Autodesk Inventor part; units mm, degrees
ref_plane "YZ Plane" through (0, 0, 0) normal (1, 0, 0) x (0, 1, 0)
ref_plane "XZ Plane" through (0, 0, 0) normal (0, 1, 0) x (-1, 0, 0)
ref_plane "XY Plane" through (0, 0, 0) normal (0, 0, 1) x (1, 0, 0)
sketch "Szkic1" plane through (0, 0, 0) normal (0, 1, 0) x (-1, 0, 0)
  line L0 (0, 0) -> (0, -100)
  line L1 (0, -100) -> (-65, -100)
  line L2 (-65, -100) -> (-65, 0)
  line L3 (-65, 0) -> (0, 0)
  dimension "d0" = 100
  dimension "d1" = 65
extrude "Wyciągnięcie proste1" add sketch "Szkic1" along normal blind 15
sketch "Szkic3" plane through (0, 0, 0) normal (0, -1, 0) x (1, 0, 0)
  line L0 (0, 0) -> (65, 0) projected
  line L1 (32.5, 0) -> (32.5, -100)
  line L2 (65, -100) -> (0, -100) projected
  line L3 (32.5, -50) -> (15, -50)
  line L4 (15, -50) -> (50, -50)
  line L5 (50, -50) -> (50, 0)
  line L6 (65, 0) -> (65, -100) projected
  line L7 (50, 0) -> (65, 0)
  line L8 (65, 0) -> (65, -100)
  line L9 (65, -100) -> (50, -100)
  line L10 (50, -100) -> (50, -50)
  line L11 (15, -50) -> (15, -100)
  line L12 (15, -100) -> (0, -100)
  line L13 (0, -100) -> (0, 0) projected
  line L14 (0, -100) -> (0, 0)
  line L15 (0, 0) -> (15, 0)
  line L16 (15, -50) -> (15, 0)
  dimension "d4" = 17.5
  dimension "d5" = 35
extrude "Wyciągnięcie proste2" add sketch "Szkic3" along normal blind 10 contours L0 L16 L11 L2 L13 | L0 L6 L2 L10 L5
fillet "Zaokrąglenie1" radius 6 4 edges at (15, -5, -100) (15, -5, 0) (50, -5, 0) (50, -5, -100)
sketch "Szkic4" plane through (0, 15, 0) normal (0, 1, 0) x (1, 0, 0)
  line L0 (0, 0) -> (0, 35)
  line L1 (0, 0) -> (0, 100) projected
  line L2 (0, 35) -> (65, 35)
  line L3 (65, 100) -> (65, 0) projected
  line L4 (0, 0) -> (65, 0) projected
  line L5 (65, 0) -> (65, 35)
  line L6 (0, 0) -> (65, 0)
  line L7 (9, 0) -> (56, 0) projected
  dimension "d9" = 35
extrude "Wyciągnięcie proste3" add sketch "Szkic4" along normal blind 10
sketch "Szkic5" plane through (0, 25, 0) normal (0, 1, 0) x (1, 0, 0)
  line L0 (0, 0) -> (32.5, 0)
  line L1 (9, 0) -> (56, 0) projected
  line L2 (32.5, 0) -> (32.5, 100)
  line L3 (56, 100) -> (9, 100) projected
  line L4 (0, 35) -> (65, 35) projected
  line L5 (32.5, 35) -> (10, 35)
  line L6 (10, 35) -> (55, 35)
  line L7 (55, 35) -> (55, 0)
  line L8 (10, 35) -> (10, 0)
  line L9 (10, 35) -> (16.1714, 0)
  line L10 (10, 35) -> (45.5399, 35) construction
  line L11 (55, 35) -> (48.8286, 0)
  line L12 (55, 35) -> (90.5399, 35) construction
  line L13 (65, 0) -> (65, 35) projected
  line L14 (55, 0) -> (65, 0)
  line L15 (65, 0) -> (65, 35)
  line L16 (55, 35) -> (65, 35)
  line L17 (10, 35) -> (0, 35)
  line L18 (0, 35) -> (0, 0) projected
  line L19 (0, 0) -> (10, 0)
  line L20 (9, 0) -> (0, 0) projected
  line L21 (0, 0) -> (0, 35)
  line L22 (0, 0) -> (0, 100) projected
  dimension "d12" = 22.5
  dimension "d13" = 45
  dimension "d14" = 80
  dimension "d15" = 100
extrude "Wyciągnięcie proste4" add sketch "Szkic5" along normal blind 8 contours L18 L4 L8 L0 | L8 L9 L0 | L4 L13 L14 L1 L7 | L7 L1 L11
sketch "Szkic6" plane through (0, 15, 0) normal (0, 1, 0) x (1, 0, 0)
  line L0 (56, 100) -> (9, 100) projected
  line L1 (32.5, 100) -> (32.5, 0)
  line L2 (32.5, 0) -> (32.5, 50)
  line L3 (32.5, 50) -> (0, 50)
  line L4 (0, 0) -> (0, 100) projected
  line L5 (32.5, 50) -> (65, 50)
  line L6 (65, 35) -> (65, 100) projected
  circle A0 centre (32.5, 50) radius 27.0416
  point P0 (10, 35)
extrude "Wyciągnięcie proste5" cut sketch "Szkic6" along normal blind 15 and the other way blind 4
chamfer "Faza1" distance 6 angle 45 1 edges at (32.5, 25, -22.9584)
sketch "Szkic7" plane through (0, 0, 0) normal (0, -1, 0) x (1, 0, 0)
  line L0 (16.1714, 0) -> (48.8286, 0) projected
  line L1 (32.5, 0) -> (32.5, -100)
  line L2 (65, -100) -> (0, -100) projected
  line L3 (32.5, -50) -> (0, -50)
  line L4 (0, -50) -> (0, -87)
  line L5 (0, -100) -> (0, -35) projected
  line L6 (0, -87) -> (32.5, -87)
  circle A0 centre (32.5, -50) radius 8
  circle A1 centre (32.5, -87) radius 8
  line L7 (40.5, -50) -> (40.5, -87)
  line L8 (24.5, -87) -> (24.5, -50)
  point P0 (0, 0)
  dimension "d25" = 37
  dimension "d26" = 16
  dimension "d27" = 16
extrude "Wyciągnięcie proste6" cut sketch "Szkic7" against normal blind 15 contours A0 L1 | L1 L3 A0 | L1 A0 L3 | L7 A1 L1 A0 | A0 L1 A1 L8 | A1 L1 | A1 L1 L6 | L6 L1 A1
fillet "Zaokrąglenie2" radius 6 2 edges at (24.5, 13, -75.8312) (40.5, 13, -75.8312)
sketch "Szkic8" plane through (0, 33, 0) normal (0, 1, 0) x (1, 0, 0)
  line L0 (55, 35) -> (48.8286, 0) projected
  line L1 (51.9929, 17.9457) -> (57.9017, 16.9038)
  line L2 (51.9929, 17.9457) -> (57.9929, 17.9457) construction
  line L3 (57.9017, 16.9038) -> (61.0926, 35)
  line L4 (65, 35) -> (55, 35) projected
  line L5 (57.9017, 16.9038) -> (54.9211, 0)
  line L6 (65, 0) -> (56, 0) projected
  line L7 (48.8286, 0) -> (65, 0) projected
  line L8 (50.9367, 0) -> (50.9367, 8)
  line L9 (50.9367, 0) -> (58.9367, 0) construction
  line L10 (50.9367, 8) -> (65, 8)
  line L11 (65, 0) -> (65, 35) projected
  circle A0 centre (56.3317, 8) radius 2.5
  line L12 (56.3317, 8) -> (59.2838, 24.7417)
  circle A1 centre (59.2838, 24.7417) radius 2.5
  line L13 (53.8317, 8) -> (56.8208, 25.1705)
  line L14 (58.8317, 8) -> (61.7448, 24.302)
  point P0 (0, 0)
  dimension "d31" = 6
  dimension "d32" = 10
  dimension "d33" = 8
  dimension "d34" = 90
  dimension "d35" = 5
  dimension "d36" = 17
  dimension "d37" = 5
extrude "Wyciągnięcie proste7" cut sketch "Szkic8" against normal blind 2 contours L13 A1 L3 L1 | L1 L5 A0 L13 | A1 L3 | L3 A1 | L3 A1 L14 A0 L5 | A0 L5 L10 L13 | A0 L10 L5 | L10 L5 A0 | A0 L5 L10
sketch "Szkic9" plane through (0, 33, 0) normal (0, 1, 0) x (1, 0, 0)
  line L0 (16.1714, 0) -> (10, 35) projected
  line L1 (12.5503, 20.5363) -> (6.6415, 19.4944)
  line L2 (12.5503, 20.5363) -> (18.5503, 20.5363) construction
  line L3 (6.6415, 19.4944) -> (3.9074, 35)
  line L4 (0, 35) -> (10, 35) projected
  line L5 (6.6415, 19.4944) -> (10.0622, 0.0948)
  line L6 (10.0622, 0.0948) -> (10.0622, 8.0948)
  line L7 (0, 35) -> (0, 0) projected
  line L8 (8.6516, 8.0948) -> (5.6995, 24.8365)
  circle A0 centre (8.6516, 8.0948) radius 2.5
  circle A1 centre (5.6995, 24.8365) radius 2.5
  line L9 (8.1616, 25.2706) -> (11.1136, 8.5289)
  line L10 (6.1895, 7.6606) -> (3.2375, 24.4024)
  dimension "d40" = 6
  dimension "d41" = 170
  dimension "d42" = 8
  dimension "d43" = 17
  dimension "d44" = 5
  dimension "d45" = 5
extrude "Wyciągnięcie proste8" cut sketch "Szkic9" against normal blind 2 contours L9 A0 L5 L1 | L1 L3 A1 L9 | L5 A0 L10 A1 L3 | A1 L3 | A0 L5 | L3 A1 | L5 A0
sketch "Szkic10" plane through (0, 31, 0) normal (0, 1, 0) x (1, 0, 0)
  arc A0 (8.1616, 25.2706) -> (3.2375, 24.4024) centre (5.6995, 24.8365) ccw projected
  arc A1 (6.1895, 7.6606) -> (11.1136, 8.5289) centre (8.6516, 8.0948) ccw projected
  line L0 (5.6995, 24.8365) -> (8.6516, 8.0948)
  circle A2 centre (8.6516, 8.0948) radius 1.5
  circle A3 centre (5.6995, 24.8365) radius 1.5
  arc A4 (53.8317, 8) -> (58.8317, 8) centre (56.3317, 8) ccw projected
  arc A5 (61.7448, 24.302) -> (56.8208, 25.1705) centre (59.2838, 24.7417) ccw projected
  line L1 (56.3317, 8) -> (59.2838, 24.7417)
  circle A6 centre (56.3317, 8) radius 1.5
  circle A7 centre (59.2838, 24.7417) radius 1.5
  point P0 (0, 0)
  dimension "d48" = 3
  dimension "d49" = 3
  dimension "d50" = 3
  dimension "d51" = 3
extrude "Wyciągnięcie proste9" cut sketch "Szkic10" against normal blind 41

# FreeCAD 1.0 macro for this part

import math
import FreeCAD as App
import Part
import Sketcher
from FreeCAD import Vector
Q = App.Units.Quantity


def edges_at(feature, points):
    """Names of the edges that pass closest to the given points."""
    edges = feature.Shape.Edges
    near = lambda p: min(range(len(edges)), key=lambda i: edges[i].distToShape(Part.Vertex(*p))[0])
    return sorted({f"Edge{near(p) + 1}" for p in points})

doc = App.newDocument("Part")
body = doc.addObject("PartDesign::Body", "Body")

sketch1 = body.newObject("Sketcher::SketchObject", "Sketch")
sketch1.AttachmentSupport = (doc.getObject("XZ_Plane"), [""])
sketch1.MapMode = "FlatFace"
sketch1.addGeometry([
    Part.LineSegment(Vector(0, -100, 0), Vector(0, 0, 0)),
    Part.LineSegment(Vector(0, 0, 0), Vector(65, 0, 0)),
    Part.LineSegment(Vector(65, 0, 0), Vector(65, -100, 0)),
    Part.LineSegment(Vector(65, -100, 0), Vector(0, -100, 0)),
], False)
sketch1.addConstraint([
    Sketcher.Constraint("Coincident", 0, 2, 1, 1),
    Sketcher.Constraint("Coincident", 1, 2, 2, 1),
    Sketcher.Constraint("Coincident", 2, 2, 3, 1),
    Sketcher.Constraint("Coincident", 3, 2, 0, 1),
    Sketcher.Constraint("Vertical", 0),
    Sketcher.Constraint("Horizontal", 1),
    Sketcher.Constraint("Vertical", 2),
    Sketcher.Constraint("Horizontal", 3),
    Sketcher.Constraint("Coincident", 0, 2, -1, 1),
    Sketcher.Constraint("DistanceX", 1, 1, 1, 2, 65.0),
    Sketcher.Constraint("DistanceY", 0, 1, 0, 2, 100.0),
])
pad1 = body.newObject("PartDesign::Pad", "Pad")
pad1.Profile = sketch1
pad1.Length = 15
pad1.Reversed = True

sketch2 = body.newObject("Sketcher::SketchObject", "Sketch001")
sketch2.AttachmentSupport = (doc.getObject("XZ_Plane"), [""])
sketch2.MapMode = "FlatFace"
sketch2.addGeometry([
    Part.LineSegment(Vector(15, 0, 0), Vector(0, 0, 0)),
    Part.LineSegment(Vector(0, 0, 0), Vector(0, -100, 0)),
    Part.LineSegment(Vector(0, -100, 0), Vector(15, -100, 0)),
    Part.LineSegment(Vector(15, -100, 0), Vector(15, 0, 0)),
    Part.LineSegment(Vector(65, 0, 0), Vector(50, 0, 0)),
    Part.LineSegment(Vector(50, 0, 0), Vector(50, -100, 0)),
    Part.LineSegment(Vector(50, -100, 0), Vector(65, -100, 0)),
    Part.LineSegment(Vector(65, -100, 0), Vector(65, 0, 0)),
], False)
sketch2.addConstraint([
    Sketcher.Constraint("Coincident", 0, 2, 1, 1),
    Sketcher.Constraint("Coincident", 1, 2, 2, 1),
    Sketcher.Constraint("Coincident", 2, 2, 3, 1),
    Sketcher.Constraint("Coincident", 3, 2, 0, 1),
    Sketcher.Constraint("Coincident", 4, 2, 5, 1),
    Sketcher.Constraint("Coincident", 5, 2, 6, 1),
    Sketcher.Constraint("Coincident", 6, 2, 7, 1),
    Sketcher.Constraint("Coincident", 7, 2, 4, 1),
    Sketcher.Constraint("Horizontal", 0),
    Sketcher.Constraint("Vertical", 1),
    Sketcher.Constraint("Horizontal", 2),
    Sketcher.Constraint("Vertical", 3),
    Sketcher.Constraint("Horizontal", 4),
    Sketcher.Constraint("Vertical", 5),
    Sketcher.Constraint("Horizontal", 6),
    Sketcher.Constraint("Vertical", 7),
    Sketcher.Constraint("Coincident", 0, 2, -1, 1),
    Sketcher.Constraint("PointOnObject", 4, 2, -1),
    Sketcher.Constraint("Horizontal", 2, 2, 5, 2),
    Sketcher.Constraint("Equal", 2, 4),
    Sketcher.Constraint("DistanceX", 3, 2, 4, 2, 35.0),
    Sketcher.Constraint("DistanceX", 0, 2, 0, 1, 15.0),
    Sketcher.Constraint("DistanceY", 1, 2, 1, 1, 100.0),
])
pad2 = body.newObject("PartDesign::Pad", "Pad001")
pad2.Profile = sketch2
pad2.Length = 10
doc.recompute()

fillet = body.newObject("PartDesign::Fillet", "Fillet")
fillet.Base = (pad2, edges_at(pad2, [
    (15, -5, -100),
    (15, -5, 0),
    (50, -5, 0),
    (50, -5, -100),
]))
fillet.Radius = 6

sketch3 = body.newObject("Sketcher::SketchObject", "Sketch002")
sketch3.AttachmentSupport = (doc.getObject("XZ_Plane"), [""])
sketch3.MapMode = "FlatFace"
sketch3.AttachmentOffset = App.Placement(Vector(0, 0, -15), App.Rotation())
sketch3.addGeometry([
    Part.LineSegment(Vector(0, -35, 0), Vector(0, 0, 0)),
    Part.LineSegment(Vector(0, 0, 0), Vector(65, 0, 0)),
    Part.LineSegment(Vector(65, 0, 0), Vector(65, -35, 0)),
    Part.LineSegment(Vector(65, -35, 0), Vector(0, -35, 0)),
], False)
sketch3.addConstraint([
    Sketcher.Constraint("Coincident", 0, 2, 1, 1),
    Sketcher.Constraint("Coincident", 1, 2, 2, 1),
    Sketcher.Constraint("Coincident", 2, 2, 3, 1),
    Sketcher.Constraint("Coincident", 3, 2, 0, 1),
    Sketcher.Constraint("Vertical", 0),
    Sketcher.Constraint("Horizontal", 1),
    Sketcher.Constraint("Vertical", 2),
    Sketcher.Constraint("Horizontal", 3),
    Sketcher.Constraint("Coincident", 0, 2, -1, 1),
    Sketcher.Constraint("DistanceY", 0, 1, 0, 2, 35.0),
    Sketcher.Constraint("DistanceX", 1, 1, 1, 2, 65.0),
])
pad3 = body.newObject("PartDesign::Pad", "Pad002")
pad3.Profile = sketch3
pad3.Length = 10
pad3.Reversed = True

sketch4 = body.newObject("Sketcher::SketchObject", "Sketch003")
sketch4.AttachmentSupport = (doc.getObject("XZ_Plane"), [""])
sketch4.MapMode = "FlatFace"
sketch4.AttachmentOffset = App.Placement(Vector(0, 0, -25), App.Rotation())
sketch4.addGeometry([
    Part.LineSegment(Vector(0, -35, 0), Vector(0, 0, 0)),
    Part.LineSegment(Vector(0, 0, 0), Vector(16.1714, 0, 0)),
    Part.LineSegment(Vector(16.1714, 0, 0), Vector(10, -35, 0)),
    Part.LineSegment(Vector(10, -35, 0), Vector(0, -35, 0)),
    Part.LineSegment(Vector(65, -35, 0), Vector(55, -35, 0)),
    Part.LineSegment(Vector(55, -35, 0), Vector(48.8286, 0, 0)),
    Part.LineSegment(Vector(48.8286, 0, 0), Vector(65, 0, 0)),
    Part.LineSegment(Vector(65, 0, 0), Vector(65, -35, 0)),
], False)
sketch4.addConstraint([
    Sketcher.Constraint("Coincident", 0, 2, 1, 1),
    Sketcher.Constraint("Coincident", 1, 2, 2, 1),
    Sketcher.Constraint("Coincident", 2, 2, 3, 1),
    Sketcher.Constraint("Coincident", 3, 2, 0, 1),
    Sketcher.Constraint("Coincident", 4, 2, 5, 1),
    Sketcher.Constraint("Coincident", 5, 2, 6, 1),
    Sketcher.Constraint("Coincident", 6, 2, 7, 1),
    Sketcher.Constraint("Coincident", 7, 2, 4, 1),
    Sketcher.Constraint("Vertical", 0),
    Sketcher.Constraint("Horizontal", 1),
    Sketcher.Constraint("Horizontal", 3),
    Sketcher.Constraint("Horizontal", 4),
    Sketcher.Constraint("Horizontal", 6),
    Sketcher.Constraint("Vertical", 7),
    Sketcher.Constraint("Coincident", 0, 2, -1, 1),
    Sketcher.Constraint("PointOnObject", 5, 2, -1),
    Sketcher.Constraint("Horizontal", 3, 2, 4, 2),
    Sketcher.Constraint("Equal", 3, 4),
    Sketcher.Constraint("Equal", 1, 6),
    Sketcher.Constraint("Angle", 2, Q("-100 deg")),
    Sketcher.Constraint("DistanceX", 2, 2, 4, 2, 45.0),
    Sketcher.Constraint("DistanceX", 3, 2, 3, 1, 10.0),
    Sketcher.Constraint("DistanceY", 0, 1, 0, 2, 35.0),
])
pad4 = body.newObject("PartDesign::Pad", "Pad003")
pad4.Profile = sketch4
pad4.Length = 8
pad4.Reversed = True

sketch5 = body.newObject("Sketcher::SketchObject", "Sketch004")
sketch5.AttachmentSupport = (doc.getObject("XZ_Plane"), [""])
sketch5.MapMode = "FlatFace"
sketch5.AttachmentOffset = App.Placement(Vector(0, 0, -15), App.Rotation())
sketch5.addGeometry(Part.Circle(Vector(32.5, -50, 0), Vector(0, 0, 1), 27.0416), False)
sketch5.addConstraint([
    Sketcher.Constraint("DistanceY", 0, 3, -1, 1, 50.0),
    Sketcher.Constraint("Diameter", 0, 54.0832),
    Sketcher.Constraint("DistanceX", -1, 1, 0, 3, 32.5),
])
pocket1 = body.newObject("PartDesign::Pocket", "Pocket")
pocket1.Profile = sketch5
pocket1.Type = "TwoLengths"
pocket1.Length = 15
pocket1.Length2 = 4
doc.recompute()

chamfer = body.newObject("PartDesign::Chamfer", "Chamfer")
chamfer.Base = (pocket1, edges_at(pocket1, [(32.5, 25, -22.958)]))
chamfer.Size = 6

sketch6 = body.newObject("Sketcher::SketchObject", "Sketch005")
sketch6.AttachmentSupport = (doc.getObject("XZ_Plane"), [""])
sketch6.MapMode = "FlatFace"
sketch6.addGeometry([
    Part.ArcOfCircle(Part.Circle(Vector(32.5, -50, 0), Vector(0, 0, 1), 8), math.radians(0), math.radians(180)),
    Part.LineSegment(Vector(24.5, -50, 0), Vector(24.5, -87, 0)),
    Part.ArcOfCircle(Part.Circle(Vector(32.5, -87, 0), Vector(0, 0, 1), 8), math.radians(180), math.radians(360)),
    Part.LineSegment(Vector(40.5, -87, 0), Vector(40.5, -50, 0)),
], False)
sketch6.addConstraint([
    Sketcher.Constraint("Tangent", 0, 2, 1, 1),
    Sketcher.Constraint("Tangent", 1, 2, 2, 1),
    Sketcher.Constraint("Tangent", 2, 2, 3, 1),
    Sketcher.Constraint("Tangent", 3, 2, 0, 1),
    Sketcher.Constraint("Vertical", 1),
    Sketcher.Constraint("Vertical", 3),
    Sketcher.Constraint("Radius", 0, 8.0),
    Sketcher.Constraint("DistanceY", 1, 2, 1, 1, 37.0),
    Sketcher.Constraint("DistanceY", 0, 3, -1, 1, 50.0),
    Sketcher.Constraint("DistanceX", -1, 1, 0, 3, 32.5),
])
pocket2 = body.newObject("PartDesign::Pocket", "Pocket001")
pocket2.Profile = sketch6
pocket2.Length = 15
doc.recompute()

fillet2 = body.newObject("PartDesign::Fillet", "Fillet001")
fillet2.Base = (pocket2, edges_at(pocket2, [(24.5, 13, -75.831), (40.5, 13, -75.831)]))
fillet2.Radius = 6

sketch7 = body.newObject("Sketcher::SketchObject", "Sketch006")
sketch7.AttachmentSupport = (doc.getObject("XZ_Plane"), [""])
sketch7.MapMode = "FlatFace"
sketch7.AttachmentOffset = App.Placement(Vector(0, 0, -33), App.Rotation())
sketch7.addGeometry([
    Part.LineSegment(Vector(56.8208, -25.1705, 0), Vector(53.8317, -8, 0)),
    Part.ArcOfCircle(Part.Circle(Vector(56.3317, -8, 0), Vector(0, 0, 1), 2.5), math.radians(0), math.radians(180)),
    Part.LineSegment(Vector(58.8317, -8, 0), Vector(61.7448, -24.302, 0)),
    Part.ArcOfCircle(Part.Circle(Vector(59.2838, -24.7417, 0), Vector(0, 0, 1), 2.5), math.radians(-170.123983), math.radians(10.12999)),
], False)
sketch7.addConstraint([
    Sketcher.Constraint("Coincident", 0, 2, 1, 2),
    Sketcher.Constraint("Coincident", 1, 1, 2, 1),
    Sketcher.Constraint("Tangent", 2, 2, 3, 2),
    Sketcher.Constraint("Tangent", 3, 1, 0, 1),
    Sketcher.Constraint("Equal", 1, 3),
    Sketcher.Constraint("Horizontal", 1, 3, 0, 2),
    Sketcher.Constraint("Horizontal", 0, 2, 1, 1),
    Sketcher.Constraint("Radius", 1, 2.5),
    Sketcher.Constraint("DistanceY", 1, 3, -1, 1, 8.0),
    Sketcher.Constraint("DistanceY", 2, 2, -1, 1, 24.302),
    Sketcher.Constraint("DistanceX", 1, 3, 3, 3, 2.952),
    Sketcher.Constraint("DistanceX", -1, 1, 1, 3, 56.3317),
])
pocket3 = body.newObject("PartDesign::Pocket", "Pocket002")
pocket3.Profile = sketch7
pocket3.Length = 2
pocket3.Reversed = True

sketch8 = body.newObject("Sketcher::SketchObject", "Sketch007")
sketch8.AttachmentSupport = (doc.getObject("XZ_Plane"), [""])
sketch8.MapMode = "FlatFace"
sketch8.AttachmentOffset = App.Placement(Vector(0, 0, -33), App.Rotation())
sketch8.addGeometry([
    Part.LineSegment(Vector(11.1136, -8.5289, 0), Vector(8.1616, -25.2706, 0)),
    Part.ArcOfCircle(Part.Circle(Vector(5.6995, -24.8365, 0), Vector(0, 0, 1), 2.5), math.radians(170.000384), math.radians(350.000782)),
    Part.LineSegment(Vector(3.2375, -24.4024, 0), Vector(6.1895, -7.6606, 0)),
    Part.ArcOfCircle(Part.Circle(Vector(8.6516, -8.0948, 0), Vector(0, 0, 1), 2.5), math.radians(-9.999616), math.radians(169.998525)),
], False)
sketch8.addConstraint([
    Sketcher.Constraint("Tangent", 0, 2, 1, 2),
    Sketcher.Constraint("Tangent", 1, 1, 2, 1),
    Sketcher.Constraint("Tangent", 2, 2, 3, 2),
    Sketcher.Constraint("Tangent", 3, 1, 0, 1),
    Sketcher.Constraint("Equal", 1, 3),
    Sketcher.Constraint("Radius", 1, 2.5),
    Sketcher.Constraint("Distance", 0, 17.0),
    Sketcher.Constraint("Angle", 0, Q("-100 deg")),
    Sketcher.Constraint("DistanceY", 3, 1, -1, 1, 8.529),
    Sketcher.Constraint("DistanceX", -1, 1, 1, 3, 5.6995),
])
pocket4 = body.newObject("PartDesign::Pocket", "Pocket003")
pocket4.Profile = sketch8
pocket4.Length = 2
pocket4.Reversed = True

sketch9 = body.newObject("Sketcher::SketchObject", "Sketch008")
sketch9.AttachmentSupport = (doc.getObject("XZ_Plane"), [""])
sketch9.MapMode = "FlatFace"
sketch9.AttachmentOffset = App.Placement(Vector(0, 0, -31), App.Rotation())
sketch9.addGeometry([
    Part.Circle(Vector(8.6516, -8.0948, 0), Vector(0, 0, 1), 1.5),
    Part.Circle(Vector(5.6995, -24.8365, 0), Vector(0, 0, 1), 1.5),
    Part.Circle(Vector(59.2838, -24.7417, 0), Vector(0, 0, 1), 1.5),
    Part.Circle(Vector(56.3317, -8, 0), Vector(0, 0, 1), 1.5),
], False)
sketch9.addConstraint([
    Sketcher.Constraint("Equal", 0, 1),
    Sketcher.Constraint("Equal", 1, 2),
    Sketcher.Constraint("Equal", 2, 3),
    Sketcher.Constraint("Diameter", 0, 3.0),
    Sketcher.Constraint("DistanceY", 3, 3, -1, 1, 8.0),
    Sketcher.Constraint("DistanceX", 0, 3, 3, 3, 47.68),
    Sketcher.Constraint("DistanceX", 1, 3, 0, 3, 2.952),
    Sketcher.Constraint("DistanceY", 2, 3, 0, 3, 16.647),
    Sketcher.Constraint("DistanceX", 3, 3, 2, 3, 2.952),
    Sketcher.Constraint("DistanceX", -1, 1, 0, 3, 8.6516),
    Sketcher.Constraint("DistanceY", 0, 3, -1, 1, 8.0948),
    Sketcher.Constraint("DistanceY", 1, 3, -1, 1, 24.8365),
])
pocket5 = body.newObject("PartDesign::Pocket", "Pocket004")
pocket5.Profile = sketch9
pocket5.Length = 41
pocket5.Reversed = True

doc.recompute()
